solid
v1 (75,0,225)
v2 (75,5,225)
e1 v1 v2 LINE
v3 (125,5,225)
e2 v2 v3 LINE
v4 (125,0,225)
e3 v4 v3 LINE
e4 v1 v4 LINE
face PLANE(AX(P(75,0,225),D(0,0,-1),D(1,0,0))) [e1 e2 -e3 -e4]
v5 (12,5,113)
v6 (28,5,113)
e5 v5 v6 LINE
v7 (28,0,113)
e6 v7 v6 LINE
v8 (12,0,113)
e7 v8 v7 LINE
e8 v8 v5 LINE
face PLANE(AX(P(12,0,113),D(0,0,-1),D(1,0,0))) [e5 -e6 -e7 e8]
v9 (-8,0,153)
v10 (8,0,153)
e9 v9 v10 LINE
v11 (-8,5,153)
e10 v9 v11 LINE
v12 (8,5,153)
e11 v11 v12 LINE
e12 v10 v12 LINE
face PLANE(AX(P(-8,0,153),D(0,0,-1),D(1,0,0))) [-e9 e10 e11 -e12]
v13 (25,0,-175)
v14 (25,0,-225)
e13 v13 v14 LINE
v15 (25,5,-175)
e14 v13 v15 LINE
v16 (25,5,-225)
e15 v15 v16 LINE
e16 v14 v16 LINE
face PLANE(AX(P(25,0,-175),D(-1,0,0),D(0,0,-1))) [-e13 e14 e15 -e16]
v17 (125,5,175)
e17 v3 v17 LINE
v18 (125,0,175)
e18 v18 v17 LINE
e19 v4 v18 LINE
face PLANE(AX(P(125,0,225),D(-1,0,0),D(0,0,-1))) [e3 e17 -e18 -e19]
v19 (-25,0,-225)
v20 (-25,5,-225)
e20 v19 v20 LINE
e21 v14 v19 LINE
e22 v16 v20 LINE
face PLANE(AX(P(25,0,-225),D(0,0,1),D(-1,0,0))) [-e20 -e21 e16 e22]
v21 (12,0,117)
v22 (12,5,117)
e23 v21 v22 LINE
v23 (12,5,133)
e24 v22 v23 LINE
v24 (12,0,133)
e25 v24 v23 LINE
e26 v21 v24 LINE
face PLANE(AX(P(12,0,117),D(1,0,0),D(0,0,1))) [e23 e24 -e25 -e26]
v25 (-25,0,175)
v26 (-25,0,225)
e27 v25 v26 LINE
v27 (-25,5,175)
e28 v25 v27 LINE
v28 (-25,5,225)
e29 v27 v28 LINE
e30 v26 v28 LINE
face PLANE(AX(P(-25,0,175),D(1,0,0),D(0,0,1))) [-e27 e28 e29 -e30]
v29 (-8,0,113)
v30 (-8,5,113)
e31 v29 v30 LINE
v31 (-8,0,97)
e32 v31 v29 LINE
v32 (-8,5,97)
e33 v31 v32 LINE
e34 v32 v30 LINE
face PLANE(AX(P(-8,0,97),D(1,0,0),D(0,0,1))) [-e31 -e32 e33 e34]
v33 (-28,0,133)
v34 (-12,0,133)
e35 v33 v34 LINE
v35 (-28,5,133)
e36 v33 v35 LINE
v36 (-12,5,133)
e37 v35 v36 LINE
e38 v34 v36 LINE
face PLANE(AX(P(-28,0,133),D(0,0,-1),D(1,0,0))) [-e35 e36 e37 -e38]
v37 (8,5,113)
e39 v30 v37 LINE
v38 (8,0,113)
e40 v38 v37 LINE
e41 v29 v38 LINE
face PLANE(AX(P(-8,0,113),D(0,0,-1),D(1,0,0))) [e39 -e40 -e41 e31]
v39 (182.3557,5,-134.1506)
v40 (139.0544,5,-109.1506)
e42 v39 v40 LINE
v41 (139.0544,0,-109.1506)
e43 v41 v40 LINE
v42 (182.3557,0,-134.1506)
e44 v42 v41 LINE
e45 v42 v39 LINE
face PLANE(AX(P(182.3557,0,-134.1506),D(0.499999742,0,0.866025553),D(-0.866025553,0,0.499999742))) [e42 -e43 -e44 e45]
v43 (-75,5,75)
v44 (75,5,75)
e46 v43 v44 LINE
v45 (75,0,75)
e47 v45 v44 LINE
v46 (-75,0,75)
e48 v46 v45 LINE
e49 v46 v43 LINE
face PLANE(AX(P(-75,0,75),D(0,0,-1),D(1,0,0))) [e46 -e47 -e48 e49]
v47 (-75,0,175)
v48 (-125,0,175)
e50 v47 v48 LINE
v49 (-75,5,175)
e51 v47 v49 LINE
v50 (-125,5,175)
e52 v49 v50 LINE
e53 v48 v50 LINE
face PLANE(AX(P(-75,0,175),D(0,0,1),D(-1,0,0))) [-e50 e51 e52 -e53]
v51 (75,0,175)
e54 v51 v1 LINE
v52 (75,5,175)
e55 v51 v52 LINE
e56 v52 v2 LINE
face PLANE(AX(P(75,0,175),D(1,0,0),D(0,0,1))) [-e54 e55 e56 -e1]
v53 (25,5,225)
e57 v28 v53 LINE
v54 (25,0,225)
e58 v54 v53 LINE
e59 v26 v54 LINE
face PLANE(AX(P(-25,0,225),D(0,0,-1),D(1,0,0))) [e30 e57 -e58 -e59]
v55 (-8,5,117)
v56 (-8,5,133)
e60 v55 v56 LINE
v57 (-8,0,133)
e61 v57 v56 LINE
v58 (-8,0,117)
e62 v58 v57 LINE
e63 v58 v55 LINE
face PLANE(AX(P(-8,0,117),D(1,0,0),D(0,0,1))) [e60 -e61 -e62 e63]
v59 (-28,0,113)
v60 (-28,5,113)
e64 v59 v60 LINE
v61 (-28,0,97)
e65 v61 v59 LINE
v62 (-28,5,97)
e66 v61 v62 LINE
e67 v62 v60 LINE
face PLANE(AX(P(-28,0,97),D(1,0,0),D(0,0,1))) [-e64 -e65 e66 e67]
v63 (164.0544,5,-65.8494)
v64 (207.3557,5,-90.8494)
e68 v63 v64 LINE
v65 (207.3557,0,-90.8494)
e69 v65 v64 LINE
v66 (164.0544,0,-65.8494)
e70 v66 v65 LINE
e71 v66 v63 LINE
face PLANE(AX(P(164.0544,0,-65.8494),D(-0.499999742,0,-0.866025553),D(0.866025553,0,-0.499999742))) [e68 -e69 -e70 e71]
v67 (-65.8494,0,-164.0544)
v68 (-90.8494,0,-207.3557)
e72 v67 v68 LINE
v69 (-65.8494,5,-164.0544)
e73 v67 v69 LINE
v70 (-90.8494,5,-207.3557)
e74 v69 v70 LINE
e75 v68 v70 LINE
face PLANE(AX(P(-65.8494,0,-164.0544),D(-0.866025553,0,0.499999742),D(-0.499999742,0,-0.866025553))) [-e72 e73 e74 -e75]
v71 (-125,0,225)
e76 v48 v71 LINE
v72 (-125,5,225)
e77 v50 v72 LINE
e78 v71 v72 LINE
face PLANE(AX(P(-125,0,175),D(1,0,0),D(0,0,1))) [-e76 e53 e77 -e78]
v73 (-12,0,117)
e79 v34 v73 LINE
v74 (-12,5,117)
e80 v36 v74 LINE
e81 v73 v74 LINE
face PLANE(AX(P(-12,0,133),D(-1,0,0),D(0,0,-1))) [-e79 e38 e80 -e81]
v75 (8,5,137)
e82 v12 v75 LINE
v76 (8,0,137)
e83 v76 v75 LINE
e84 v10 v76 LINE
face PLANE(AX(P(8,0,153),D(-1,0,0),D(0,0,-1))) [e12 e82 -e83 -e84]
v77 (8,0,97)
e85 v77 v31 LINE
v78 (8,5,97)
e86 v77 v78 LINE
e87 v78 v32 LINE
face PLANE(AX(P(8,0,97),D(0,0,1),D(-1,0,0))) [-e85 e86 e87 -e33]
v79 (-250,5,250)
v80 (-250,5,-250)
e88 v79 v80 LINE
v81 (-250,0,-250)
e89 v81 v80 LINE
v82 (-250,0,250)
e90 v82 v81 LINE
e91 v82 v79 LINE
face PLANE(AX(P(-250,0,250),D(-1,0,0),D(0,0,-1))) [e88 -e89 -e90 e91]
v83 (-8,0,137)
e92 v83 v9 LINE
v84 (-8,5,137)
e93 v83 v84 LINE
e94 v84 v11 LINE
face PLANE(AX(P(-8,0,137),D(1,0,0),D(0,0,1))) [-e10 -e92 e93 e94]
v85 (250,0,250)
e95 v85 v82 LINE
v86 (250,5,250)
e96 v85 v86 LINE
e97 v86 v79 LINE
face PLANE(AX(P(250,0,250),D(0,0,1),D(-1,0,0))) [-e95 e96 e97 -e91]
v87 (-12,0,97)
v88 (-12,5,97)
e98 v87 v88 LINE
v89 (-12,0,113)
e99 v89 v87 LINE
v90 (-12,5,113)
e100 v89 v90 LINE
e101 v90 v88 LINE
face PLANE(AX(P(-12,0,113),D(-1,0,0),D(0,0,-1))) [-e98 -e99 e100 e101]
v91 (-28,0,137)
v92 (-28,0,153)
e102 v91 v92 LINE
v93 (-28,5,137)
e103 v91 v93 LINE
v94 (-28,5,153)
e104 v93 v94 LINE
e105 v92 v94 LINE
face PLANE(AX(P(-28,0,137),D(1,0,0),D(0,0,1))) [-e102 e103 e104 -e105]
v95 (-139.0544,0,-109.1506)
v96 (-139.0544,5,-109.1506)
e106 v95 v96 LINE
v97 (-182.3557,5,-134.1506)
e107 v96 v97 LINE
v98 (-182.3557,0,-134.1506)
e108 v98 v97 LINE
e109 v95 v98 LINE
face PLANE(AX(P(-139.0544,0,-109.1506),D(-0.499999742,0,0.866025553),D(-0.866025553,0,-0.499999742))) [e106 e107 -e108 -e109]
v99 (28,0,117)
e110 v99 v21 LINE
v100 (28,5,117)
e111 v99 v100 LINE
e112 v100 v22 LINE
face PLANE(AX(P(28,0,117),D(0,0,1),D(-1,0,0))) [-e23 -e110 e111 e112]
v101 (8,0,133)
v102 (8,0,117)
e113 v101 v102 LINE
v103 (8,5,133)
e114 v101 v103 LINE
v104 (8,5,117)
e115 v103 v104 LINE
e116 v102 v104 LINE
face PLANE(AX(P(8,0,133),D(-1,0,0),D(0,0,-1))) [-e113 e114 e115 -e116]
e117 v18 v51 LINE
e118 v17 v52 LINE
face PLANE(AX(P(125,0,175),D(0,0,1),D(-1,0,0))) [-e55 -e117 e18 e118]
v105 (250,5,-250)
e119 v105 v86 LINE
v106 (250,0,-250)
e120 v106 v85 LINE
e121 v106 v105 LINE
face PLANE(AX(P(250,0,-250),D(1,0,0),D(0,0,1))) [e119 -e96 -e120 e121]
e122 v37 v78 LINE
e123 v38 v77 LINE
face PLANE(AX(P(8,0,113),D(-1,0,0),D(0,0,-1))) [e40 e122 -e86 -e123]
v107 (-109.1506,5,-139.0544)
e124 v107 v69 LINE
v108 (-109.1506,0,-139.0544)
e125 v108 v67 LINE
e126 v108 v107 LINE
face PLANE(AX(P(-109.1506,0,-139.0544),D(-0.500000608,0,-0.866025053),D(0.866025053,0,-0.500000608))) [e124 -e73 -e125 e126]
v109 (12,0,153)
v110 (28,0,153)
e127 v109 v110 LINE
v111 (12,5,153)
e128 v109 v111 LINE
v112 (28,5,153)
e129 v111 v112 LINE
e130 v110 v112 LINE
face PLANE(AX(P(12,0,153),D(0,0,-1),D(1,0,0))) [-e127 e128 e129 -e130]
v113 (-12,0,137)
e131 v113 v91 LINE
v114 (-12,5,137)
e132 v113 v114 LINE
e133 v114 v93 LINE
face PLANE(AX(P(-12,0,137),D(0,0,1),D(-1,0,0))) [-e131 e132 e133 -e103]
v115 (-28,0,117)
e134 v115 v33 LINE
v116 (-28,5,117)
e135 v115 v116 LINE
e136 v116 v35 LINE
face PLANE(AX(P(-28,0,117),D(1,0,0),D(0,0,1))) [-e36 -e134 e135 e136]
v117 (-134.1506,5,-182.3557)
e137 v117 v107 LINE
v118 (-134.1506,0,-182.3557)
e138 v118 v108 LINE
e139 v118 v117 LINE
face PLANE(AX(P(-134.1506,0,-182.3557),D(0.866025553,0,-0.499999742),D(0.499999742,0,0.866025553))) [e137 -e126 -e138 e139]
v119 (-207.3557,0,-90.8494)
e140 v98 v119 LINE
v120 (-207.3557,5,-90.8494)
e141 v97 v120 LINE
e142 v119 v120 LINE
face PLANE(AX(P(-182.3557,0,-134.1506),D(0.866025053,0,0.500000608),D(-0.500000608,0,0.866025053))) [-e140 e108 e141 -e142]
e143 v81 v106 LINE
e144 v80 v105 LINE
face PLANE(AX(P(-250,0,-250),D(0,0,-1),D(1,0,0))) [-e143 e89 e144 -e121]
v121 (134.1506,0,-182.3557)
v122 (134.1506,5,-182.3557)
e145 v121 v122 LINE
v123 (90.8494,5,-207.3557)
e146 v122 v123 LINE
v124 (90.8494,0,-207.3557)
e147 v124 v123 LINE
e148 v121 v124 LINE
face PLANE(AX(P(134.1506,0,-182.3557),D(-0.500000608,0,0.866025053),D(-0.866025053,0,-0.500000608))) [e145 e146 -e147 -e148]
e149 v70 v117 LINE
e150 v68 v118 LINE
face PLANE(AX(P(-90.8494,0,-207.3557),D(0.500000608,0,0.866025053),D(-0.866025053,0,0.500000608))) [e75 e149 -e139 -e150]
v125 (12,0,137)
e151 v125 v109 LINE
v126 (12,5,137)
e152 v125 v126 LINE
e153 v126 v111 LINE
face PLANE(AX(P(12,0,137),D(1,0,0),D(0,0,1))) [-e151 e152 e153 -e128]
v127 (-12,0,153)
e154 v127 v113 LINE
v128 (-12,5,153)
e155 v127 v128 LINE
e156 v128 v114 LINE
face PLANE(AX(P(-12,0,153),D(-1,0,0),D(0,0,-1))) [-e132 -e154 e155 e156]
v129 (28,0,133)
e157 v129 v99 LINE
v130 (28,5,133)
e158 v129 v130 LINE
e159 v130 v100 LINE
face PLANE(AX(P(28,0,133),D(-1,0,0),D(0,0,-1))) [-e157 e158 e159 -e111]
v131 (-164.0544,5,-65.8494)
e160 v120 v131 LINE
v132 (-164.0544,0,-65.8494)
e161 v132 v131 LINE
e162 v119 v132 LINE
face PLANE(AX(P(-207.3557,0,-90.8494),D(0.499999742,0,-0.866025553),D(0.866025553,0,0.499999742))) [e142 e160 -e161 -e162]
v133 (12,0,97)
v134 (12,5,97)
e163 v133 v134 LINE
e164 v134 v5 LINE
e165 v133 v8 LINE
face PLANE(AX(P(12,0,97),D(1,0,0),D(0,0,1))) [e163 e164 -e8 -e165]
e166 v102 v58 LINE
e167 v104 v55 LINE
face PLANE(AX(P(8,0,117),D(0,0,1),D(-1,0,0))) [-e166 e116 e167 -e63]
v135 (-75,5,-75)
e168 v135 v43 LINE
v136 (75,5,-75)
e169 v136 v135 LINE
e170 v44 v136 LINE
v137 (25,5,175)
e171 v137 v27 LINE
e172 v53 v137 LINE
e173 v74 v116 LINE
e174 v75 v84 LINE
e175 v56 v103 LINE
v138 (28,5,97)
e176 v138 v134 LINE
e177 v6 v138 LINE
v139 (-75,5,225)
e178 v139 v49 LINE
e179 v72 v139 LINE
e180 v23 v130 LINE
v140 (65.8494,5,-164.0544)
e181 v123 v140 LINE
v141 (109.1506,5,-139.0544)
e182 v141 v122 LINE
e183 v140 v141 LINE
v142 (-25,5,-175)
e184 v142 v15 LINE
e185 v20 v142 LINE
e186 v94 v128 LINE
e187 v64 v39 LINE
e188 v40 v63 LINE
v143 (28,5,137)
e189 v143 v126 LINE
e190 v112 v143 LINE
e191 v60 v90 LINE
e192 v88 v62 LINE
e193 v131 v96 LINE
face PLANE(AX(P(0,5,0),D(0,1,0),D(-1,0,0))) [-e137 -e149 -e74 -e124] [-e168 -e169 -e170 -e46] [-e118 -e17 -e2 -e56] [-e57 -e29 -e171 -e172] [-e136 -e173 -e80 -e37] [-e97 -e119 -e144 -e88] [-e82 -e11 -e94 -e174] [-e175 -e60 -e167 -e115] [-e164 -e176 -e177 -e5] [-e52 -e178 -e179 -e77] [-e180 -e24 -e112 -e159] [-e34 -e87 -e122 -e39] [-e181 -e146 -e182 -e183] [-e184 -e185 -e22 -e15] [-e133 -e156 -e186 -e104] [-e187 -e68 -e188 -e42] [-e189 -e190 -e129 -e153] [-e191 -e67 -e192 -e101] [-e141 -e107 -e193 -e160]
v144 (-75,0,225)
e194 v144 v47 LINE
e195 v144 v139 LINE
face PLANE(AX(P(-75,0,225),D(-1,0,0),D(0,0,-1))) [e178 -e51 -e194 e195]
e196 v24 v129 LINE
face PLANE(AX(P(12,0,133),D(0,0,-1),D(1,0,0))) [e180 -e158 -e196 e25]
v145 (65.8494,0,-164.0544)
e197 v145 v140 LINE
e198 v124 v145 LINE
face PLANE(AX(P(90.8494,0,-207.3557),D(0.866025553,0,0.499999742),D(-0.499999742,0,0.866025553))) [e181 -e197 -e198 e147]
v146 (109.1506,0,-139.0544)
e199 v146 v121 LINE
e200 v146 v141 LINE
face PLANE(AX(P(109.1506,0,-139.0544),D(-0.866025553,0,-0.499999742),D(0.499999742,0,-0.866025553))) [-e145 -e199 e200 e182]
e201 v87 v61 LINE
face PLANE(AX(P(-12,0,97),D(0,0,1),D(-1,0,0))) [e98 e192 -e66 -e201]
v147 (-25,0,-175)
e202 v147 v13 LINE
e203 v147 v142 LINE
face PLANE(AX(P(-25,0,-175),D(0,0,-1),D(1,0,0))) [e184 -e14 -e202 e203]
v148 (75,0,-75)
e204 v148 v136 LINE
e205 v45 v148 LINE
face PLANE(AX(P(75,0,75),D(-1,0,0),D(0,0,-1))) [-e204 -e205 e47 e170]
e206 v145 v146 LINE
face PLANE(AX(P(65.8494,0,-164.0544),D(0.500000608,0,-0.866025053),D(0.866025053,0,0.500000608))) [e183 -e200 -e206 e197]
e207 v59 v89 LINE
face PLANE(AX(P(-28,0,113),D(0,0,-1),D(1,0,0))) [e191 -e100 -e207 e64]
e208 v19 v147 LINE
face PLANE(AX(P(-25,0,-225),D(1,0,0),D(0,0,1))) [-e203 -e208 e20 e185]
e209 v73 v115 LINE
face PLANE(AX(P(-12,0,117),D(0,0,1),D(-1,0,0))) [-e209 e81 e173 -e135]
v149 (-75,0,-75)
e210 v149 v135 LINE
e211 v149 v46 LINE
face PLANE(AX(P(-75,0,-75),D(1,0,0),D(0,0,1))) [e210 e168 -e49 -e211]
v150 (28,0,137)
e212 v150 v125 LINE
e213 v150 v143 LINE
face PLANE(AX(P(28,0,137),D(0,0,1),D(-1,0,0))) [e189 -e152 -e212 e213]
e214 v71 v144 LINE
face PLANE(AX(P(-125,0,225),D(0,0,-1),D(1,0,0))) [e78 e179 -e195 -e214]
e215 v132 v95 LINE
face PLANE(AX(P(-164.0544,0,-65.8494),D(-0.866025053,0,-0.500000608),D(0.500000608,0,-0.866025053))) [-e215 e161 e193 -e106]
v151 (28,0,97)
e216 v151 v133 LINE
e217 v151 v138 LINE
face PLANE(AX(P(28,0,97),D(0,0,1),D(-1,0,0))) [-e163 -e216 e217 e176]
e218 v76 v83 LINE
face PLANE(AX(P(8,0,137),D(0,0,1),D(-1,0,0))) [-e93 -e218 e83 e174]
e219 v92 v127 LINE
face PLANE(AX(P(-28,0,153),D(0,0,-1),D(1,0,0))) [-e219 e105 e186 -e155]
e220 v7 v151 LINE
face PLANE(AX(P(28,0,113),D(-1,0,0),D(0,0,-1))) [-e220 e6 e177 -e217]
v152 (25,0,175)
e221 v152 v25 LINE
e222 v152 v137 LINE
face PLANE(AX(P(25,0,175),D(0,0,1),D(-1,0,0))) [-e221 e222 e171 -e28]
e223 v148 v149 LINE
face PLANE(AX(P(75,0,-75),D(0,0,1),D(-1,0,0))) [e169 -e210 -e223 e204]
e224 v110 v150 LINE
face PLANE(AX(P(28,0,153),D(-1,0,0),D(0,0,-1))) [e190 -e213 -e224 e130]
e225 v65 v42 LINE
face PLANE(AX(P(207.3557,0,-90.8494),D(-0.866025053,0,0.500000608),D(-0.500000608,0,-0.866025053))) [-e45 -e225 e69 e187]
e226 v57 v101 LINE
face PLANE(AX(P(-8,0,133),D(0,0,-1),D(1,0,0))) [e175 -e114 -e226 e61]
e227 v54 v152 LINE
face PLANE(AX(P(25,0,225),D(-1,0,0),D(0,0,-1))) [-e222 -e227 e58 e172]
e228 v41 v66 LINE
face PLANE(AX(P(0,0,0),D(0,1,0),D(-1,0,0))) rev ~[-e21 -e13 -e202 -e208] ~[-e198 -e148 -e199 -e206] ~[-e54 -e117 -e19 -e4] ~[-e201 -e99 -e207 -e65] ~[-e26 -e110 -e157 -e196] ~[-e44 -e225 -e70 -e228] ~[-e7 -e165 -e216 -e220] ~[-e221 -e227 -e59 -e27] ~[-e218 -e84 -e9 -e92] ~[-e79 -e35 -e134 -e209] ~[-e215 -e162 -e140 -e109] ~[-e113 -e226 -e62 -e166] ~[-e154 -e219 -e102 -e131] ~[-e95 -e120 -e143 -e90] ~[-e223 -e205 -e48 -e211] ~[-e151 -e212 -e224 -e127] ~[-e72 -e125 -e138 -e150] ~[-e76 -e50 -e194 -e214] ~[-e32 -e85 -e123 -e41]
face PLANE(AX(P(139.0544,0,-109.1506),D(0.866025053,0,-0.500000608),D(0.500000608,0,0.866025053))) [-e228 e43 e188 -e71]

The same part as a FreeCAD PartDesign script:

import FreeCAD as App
import Part
import Sketcher
from FreeCAD import Vector
Q = App.Units.Quantity


def add_polygon(sketch, points):
    """Adds a closed chain of lines whose ends are joined by coincident constraints."""
    first, n = sketch.GeometryCount, len(points)
    for a, b in zip(points, points[1:] + points[:1]):
        sketch.addGeometry(Part.LineSegment(App.Vector(*a, 0), App.Vector(*b, 0)), False)
    for i in range(n):
        sketch.addConstraint(Sketcher.Constraint("Coincident", first + i, 2, first + (i + 1) % n, 1))

doc = App.newDocument("Part")
body = doc.addObject("PartDesign::Body", "Body")

# Sketch on XZ plane
sketch1 = body.newObject("Sketcher::SketchObject", "Sketch")
sketch1.AttachmentSupport = (doc.getObject("XZ_Plane"), [""])
sketch1.MapMode = "FlatFace"
add_polygon(sketch1, [(250, 250), (250, -250), (-250, -250), (-250, 250)])  # lines 0-3
add_polygon(sketch1, [(109, -139), (66, -164), (91, -207), (134, -182)])  # lines 4-7
add_polygon(sketch1, [(164, -66), (139, -109), (182, -134), (207, -91)])  # lines 8-11
add_polygon(sketch1, [(25, -175), (-25, -175), (-25, -225), (25, -225)])  # lines 12-15
add_polygon(sketch1, [(-66, -164), (-109, -139), (-134, -182), (-91, -207)])  # lines 16-19
add_polygon(sketch1, [(-139, -109), (-164, -66), (-207, -91), (-182, -134)])  # lines 20-23
add_polygon(sketch1, [(12, 113), (12, 97), (28, 97), (28, 113)])  # lines 24-27
add_polygon(sketch1, [(12, 133), (12, 117), (28, 117), (28, 133)])  # lines 28-31
add_polygon(sketch1, [(12, 153), (12, 137), (28, 137), (28, 153)])  # lines 32-35
add_polygon(sketch1, [(125, 225), (75, 225), (75, 175), (125, 175)])  # lines 36-39
add_polygon(sketch1, [(75, 75), (-75, 75), (-75, -75), (75, -75)])  # lines 40-43
add_polygon(sketch1, [(-8, 113), (-8, 97), (8, 97), (8, 113)])  # lines 44-47
add_polygon(sketch1, [(-28, 113), (-28, 97), (-12, 97), (-12, 113)])  # lines 48-51
add_polygon(sketch1, [(8, 133), (-8, 133), (-8, 117), (8, 117)])  # lines 52-55
add_polygon(sketch1, [(-28, 133), (-28, 117), (-12, 117), (-12, 133)])  # lines 56-59
add_polygon(sketch1, [(-8, 153), (-8, 137), (8, 137), (8, 153)])  # lines 60-63
add_polygon(sketch1, [(-28, 153), (-28, 137), (-12, 137), (-12, 153)])  # lines 64-67
add_polygon(sketch1, [(25, 225), (-25, 225), (-25, 175), (25, 175)])  # lines 68-71
add_polygon(sketch1, [(-75, 225), (-125, 225), (-125, 175), (-75, 175)])  # lines 72-75
sketch1.addConstraint([
    Sketcher.Constraint("Vertical", 0),
    Sketcher.Constraint("Horizontal", 1),
    Sketcher.Constraint("Vertical", 2),
    Sketcher.Constraint("Horizontal", 3),
    Sketcher.Constraint("Horizontal", 12),
    Sketcher.Constraint("Vertical", 13),
    Sketcher.Constraint("Horizontal", 14),
    Sketcher.Constraint("Vertical", 15),
    Sketcher.Constraint("Vertical", 24),
    Sketcher.Constraint("Horizontal", 25),
    Sketcher.Constraint("Vertical", 26),
    Sketcher.Constraint("Horizontal", 27),
    Sketcher.Constraint("Vertical", 28),
    Sketcher.Constraint("Horizontal", 29),
    Sketcher.Constraint("Vertical", 30),
    Sketcher.Constraint("Horizontal", 31),
    Sketcher.Constraint("Vertical", 32),
    Sketcher.Constraint("Horizontal", 33),
    Sketcher.Constraint("Vertical", 34),
    Sketcher.Constraint("Horizontal", 35),
    Sketcher.Constraint("Horizontal", 36),
    Sketcher.Constraint("Vertical", 37),
    Sketcher.Constraint("Horizontal", 38),
    Sketcher.Constraint("Vertical", 39),
    Sketcher.Constraint("Horizontal", 40),
    Sketcher.Constraint("Vertical", 41),
    Sketcher.Constraint("Horizontal", 42),
    Sketcher.Constraint("Vertical", 43),
    Sketcher.Constraint("Vertical", 44),
    Sketcher.Constraint("Horizontal", 45),
    Sketcher.Constraint("Vertical", 46),
    Sketcher.Constraint("Horizontal", 47),
    Sketcher.Constraint("Vertical", 48),
    Sketcher.Constraint("Horizontal", 49),
    Sketcher.Constraint("Vertical", 50),
    Sketcher.Constraint("Horizontal", 51),
    Sketcher.Constraint("Horizontal", 52),
    Sketcher.Constraint("Vertical", 53),
    Sketcher.Constraint("Horizontal", 54),
    Sketcher.Constraint("Vertical", 55),
    Sketcher.Constraint("Vertical", 56),
    Sketcher.Constraint("Horizontal", 57),
    Sketcher.Constraint("Vertical", 58),
    Sketcher.Constraint("Horizontal", 59),
    Sketcher.Constraint("Vertical", 60),
    Sketcher.Constraint("Horizontal", 61),
    Sketcher.Constraint("Vertical", 62),
    Sketcher.Constraint("Horizontal", 63),
    Sketcher.Constraint("Vertical", 64),
    Sketcher.Constraint("Horizontal", 65),
    Sketcher.Constraint("Vertical", 66),
    Sketcher.Constraint("Horizontal", 67),
    Sketcher.Constraint("Horizontal", 68),
    Sketcher.Constraint("Vertical", 69),
    Sketcher.Constraint("Horizontal", 70),
    Sketcher.Constraint("Vertical", 71),
    Sketcher.Constraint("Horizontal", 72),
    Sketcher.Constraint("Vertical", 73),
    Sketcher.Constraint("Horizontal", 74),
    Sketcher.Constraint("Vertical", 75),
    Sketcher.Constraint("Symmetric", 0, 2, 2, 2, -1, 1),
    Sketcher.Constraint("Symmetric", 40, 2, 42, 2, -1, 1),
    Sketcher.Constraint("Symmetric", 14, 2, 68, 2, -1, 1),
    Sketcher.Constraint("Symmetric", 12, 2, 70, 2, -1, 1),
    Sketcher.Constraint("Symmetric", 7, 2, 16, 2, -2),
    Sketcher.Constraint("Symmetric", 6, 2, 17, 2, -2),
    Sketcher.Constraint("Symmetric", 5, 2, 18, 2, -2),
    Sketcher.Constraint("Symmetric", 4, 2, 19, 2, -2),
    Sketcher.Constraint("Symmetric", 11, 2, 20, 2, -2),
    Sketcher.Constraint("Symmetric", 10, 2, 21, 2, -2),
    Sketcher.Constraint("Symmetric", 9, 2, 22, 2, -2),
    Sketcher.Constraint("Symmetric", 8, 2, 23, 2, -2),
    Sketcher.Constraint("Symmetric", 25, 2, 48, 2, -2),
    Sketcher.Constraint("Symmetric", 27, 2, 50, 2, -2),
    Sketcher.Constraint("Symmetric", 29, 2, 56, 2, -2),
    Sketcher.Constraint("Symmetric", 31, 2, 58, 2, -2),
    Sketcher.Constraint("Symmetric", 33, 2, 64, 2, -2),
    Sketcher.Constraint("Symmetric", 35, 2, 66, 2, -2),
    Sketcher.Constraint("Symmetric", 39, 2, 72, 2, -2),
    Sketcher.Constraint("Symmetric", 37, 2, 74, 2, -2),
    Sketcher.Constraint("Perpendicular", 4, 5),
    Sketcher.Constraint("Perpendicular", 5, 6),
    Sketcher.Constraint("Perpendicular", 6, 7),
    Sketcher.Constraint("Perpendicular", 8, 9),
    Sketcher.Constraint("Perpendicular", 9, 10),
    Sketcher.Constraint("Perpendicular", 10, 11),
    Sketcher.Constraint("Parallel", 11, 16),
    Sketcher.Constraint("Horizontal", 25, 2, 44, 2),
    Sketcher.Constraint("Horizontal", 27, 2, 46, 2),
    Sketcher.Constraint("Horizontal", 31, 2, 52, 2),
    Sketcher.Constraint("Horizontal", 29, 2, 53, 2),
    Sketcher.Constraint("Horizontal", 33, 2, 60, 2),
    Sketcher.Constraint("Horizontal", 35, 2, 62, 2),
    Sketcher.Constraint("Horizontal", 39, 2, 68, 2),
    Sketcher.Constraint("Horizontal", 38, 2, 69, 2),
    Sketcher.Constraint("Vertical", 27, 2, 28, 2),
    Sketcher.Constraint("Vertical", 26, 2, 29, 2),
    Sketcher.Constraint("Vertical", 31, 2, 32, 2),
    Sketcher.Constraint("Vertical", 30, 2, 33, 2),
    Sketcher.Constraint("Vertical", 37, 2, 42, 2),
    Sketcher.Constraint("Vertical", 47, 2, 52, 2),
    Sketcher.Constraint("Vertical", 46, 2, 54, 2),
    Sketcher.Constraint("Vertical", 53, 2, 60, 2),
    Sketcher.Constraint("Vertical", 55, 2, 61, 2),
    Sketcher.Constraint("Vertical", 13, 2, 68, 2),
    Sketcher.Constraint("Equal", 14, 36),
    Sketcher.Constraint("Equal", 35, 45),
    Sketcher.Constraint("Equal", 3, 0),
    Sketcher.Constraint("Equal", 74, 13),
    Sketcher.Constraint("Equal", 67, 24),
    Sketcher.Constraint("Equal", 26, 28),
    Sketcher.Constraint("Equal", 30, 32),
    Sketcher.Constraint("Equal", 42, 41),
    Sketcher.Constraint("Equal", 4, 5),
    Sketcher.Constraint("Equal", 7, 8),
    Sketcher.Constraint("Equal", 8, 9),
    Sketcher.Constraint("DistanceX", 1, 2, 1, 1, 500.0),
    Sketcher.Constraint("DistanceX", 12, 2, 12, 1, 50.0),
    Sketcher.Constraint("DistanceX", 25, 1, 25, 2, 16.0),
    Sketcher.Constraint("DistanceX", 40, 2, 40, 1, 150.0),
    Sketcher.Constraint("Angle", 4, Q("-150 deg")),
    Sketcher.Constraint("Distance", 4, 50.0),
    Sketcher.Constraint("DistanceY", 12, 2, -1, 1, 175.0),
    Sketcher.Constraint("DistanceX", -1, 1, 24, 2, 12.0),
    Sketcher.Constraint("DistanceY", -1, 1, 24, 2, 97.0),
    Sketcher.Constraint("DistanceY", -1, 1, 28, 2, 117.0),
    Sketcher.Constraint("DistanceY", -1, 1, 32, 2, 137.0),
    Sketcher.Constraint("DistanceX", 44, 2, -1, 1, 8.0),
    Sketcher.Constraint("DistanceX", -1, 1, 4, 2, 65.8494),
    Sketcher.Constraint("DistanceY", 4, 2, -1, 1, 164.0544),
    Sketcher.Constraint("DistanceX", -1, 1, 8, 2, 139.0544),
    Sketcher.Constraint("DistanceY", 8, 2, -1, 1, 109.1506),
])
pad1 = body.newObject("PartDesign::Pad", "Pad")
pad1.Profile = sketch1
pad1.Length = 5
pad1.Reversed = True

doc.recompute()
